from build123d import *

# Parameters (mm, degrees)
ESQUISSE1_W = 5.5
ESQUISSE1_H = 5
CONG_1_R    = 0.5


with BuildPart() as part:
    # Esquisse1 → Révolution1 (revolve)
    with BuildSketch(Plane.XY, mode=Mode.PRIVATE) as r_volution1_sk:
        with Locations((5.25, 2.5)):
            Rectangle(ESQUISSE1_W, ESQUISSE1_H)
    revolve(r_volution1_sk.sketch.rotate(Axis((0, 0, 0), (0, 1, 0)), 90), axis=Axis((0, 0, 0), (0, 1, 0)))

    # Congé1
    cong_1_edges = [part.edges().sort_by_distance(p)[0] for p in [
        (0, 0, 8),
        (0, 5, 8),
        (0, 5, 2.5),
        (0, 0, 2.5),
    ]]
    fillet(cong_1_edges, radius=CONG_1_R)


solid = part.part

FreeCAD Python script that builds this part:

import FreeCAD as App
import Part
import Sketcher
from FreeCAD import Vector
Q = App.Units.Quantity


def edges_at(feature, points):
    """Names of the edges that pass closest to the given points."""
    edges = feature.Shape.Edges
    near = lambda p: min(range(len(edges)), key=lambda i: edges[i].distToShape(Part.Vertex(*p))[0])
    return sorted({f"Edge{near(p) + 1}" for p in points})

doc = App.newDocument("Part")
body = doc.addObject("PartDesign::Body", "Body")

sketch1 = body.newObject("Sketcher::SketchObject", "Sketch")
sketch1.AttachmentSupport = (doc.getObject("XY_Plane"), [""])
sketch1.MapMode = "FlatFace"
sketch1.addGeometry(Part.LineSegment(Vector(2, 5, 0), Vector(2, 0, 0)), False)
sketch1.addGeometry(Part.LineSegment(Vector(2, 0, 0), Vector(8, 0, 0)), False)
sketch1.addGeometry(Part.LineSegment(Vector(8, 0, 0), Vector(8, 5, 0)), False)
sketch1.addGeometry(Part.LineSegment(Vector(8, 5, 0), Vector(2, 5, 0)), False)
sketch1.addConstraint(Sketcher.Constraint("Coincident", 0, 2, 1, 1))
sketch1.addConstraint(Sketcher.Constraint("Coincident", 1, 2, 2, 1))
sketch1.addConstraint(Sketcher.Constraint("Coincident", 2, 2, 3, 1))
sketch1.addConstraint(Sketcher.Constraint("Coincident", 3, 2, 0, 1))
sketch1.addConstraint(Sketcher.Constraint("Vertical", 0))
sketch1.addConstraint(Sketcher.Constraint("Horizontal", 1))
sketch1.addConstraint(Sketcher.Constraint("Vertical", 2))
sketch1.addConstraint(Sketcher.Constraint("Horizontal", 3))
sketch1.addConstraint(Sketcher.Constraint("PointOnObject", 0, 2, -1))
sketch1.addConstraint(Sketcher.Constraint("DistanceY", 0, 2, 0, 1, Q("5 mm")))
sketch1.addConstraint(Sketcher.Constraint("DistanceX", 1, 1, 1, 2, Q("5.5 mm")))
sketch1.addConstraint(Sketcher.Constraint("DistanceX", -1, 1, 1, 2, Q("8 mm")))
revolution = body.newObject("PartDesign::Revolution", "Revolution")
revolution.Profile = sketch1
revolution.ReferenceAxis = (sketch1, ["V_Axis"])
revolution.Angle = 360
doc.recompute()

fillet = body.newObject("PartDesign::Fillet", "Fillet")
fillet.Base = (revolution, edges_at(revolution, [
    (0, 0, 8),
    (0, 5, 8),
    (0, 5, 2.5),
    (0, 0, 2.5),
]))
fillet.Radius = 0.5

doc.recompute()
